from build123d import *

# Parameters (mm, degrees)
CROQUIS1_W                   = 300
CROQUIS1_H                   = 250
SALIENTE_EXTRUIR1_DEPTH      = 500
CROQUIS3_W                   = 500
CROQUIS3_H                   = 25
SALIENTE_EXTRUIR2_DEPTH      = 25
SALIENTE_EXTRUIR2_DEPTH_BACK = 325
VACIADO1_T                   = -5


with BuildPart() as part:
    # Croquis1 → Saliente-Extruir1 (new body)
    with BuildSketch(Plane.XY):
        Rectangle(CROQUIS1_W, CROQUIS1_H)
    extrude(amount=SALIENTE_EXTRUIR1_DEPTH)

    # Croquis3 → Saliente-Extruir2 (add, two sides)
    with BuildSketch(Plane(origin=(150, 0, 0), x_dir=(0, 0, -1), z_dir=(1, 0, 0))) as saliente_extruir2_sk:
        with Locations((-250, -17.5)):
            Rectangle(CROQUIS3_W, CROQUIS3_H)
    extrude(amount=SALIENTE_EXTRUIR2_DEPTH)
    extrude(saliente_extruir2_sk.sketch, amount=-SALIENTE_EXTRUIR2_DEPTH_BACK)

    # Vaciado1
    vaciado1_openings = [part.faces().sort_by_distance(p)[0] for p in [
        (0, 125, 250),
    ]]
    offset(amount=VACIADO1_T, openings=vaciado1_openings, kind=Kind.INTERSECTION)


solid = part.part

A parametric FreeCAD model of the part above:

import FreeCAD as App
import Part
import Sketcher
from FreeCAD import Vector
Q = App.Units.Quantity


def faces_at(feature, points):
    """Names of the faces that lie closest to the given points."""
    faces = feature.Shape.Faces
    near = lambda p: min(range(len(faces)), key=lambda i: faces[i].distToShape(Part.Vertex(*p))[0])
    return sorted({f"Face{near(p) + 1}" for p in points})


def add_polygon(sketch, points):
    """Adds a closed chain of lines whose ends are joined by coincident constraints."""
    first, n = sketch.GeometryCount, len(points)
    for a, b in zip(points, points[1:] + points[:1]):
        sketch.addGeometry(Part.LineSegment(App.Vector(*a, 0), App.Vector(*b, 0)), False)
    for i in range(n):
        sketch.addConstraint(Sketcher.Constraint("Coincident", first + i, 2, first + (i + 1) % n, 1))

doc = App.newDocument("Part")
body = doc.addObject("PartDesign::Body", "Body")

# Sketch on XY plane
sketch1 = doc.addObject("Sketcher::SketchObject", "Sketch")
body.addObject(sketch1)
sketch1.AttachmentSupport = (doc.XY_Plane, [""])
sketch1.MapMode = "FlatFace"
add_polygon(sketch1, [(-150, 125), (-150, -125), (150, -125), (150, 125)])  # lines 0-3
sketch1.addConstraint([
    Sketcher.Constraint("Vertical", 0),
    Sketcher.Constraint("Horizontal", 1),
    Sketcher.Constraint("Vertical", 2),
    Sketcher.Constraint("Horizontal", 3),
    Sketcher.Constraint("Symmetric", 0, 2, 2, 2, -1, 1),
    Sketcher.Constraint("DistanceX", 1, 1, 1, 2, Q("300 mm")),
    Sketcher.Constraint("DistanceY", 0, 2, 0, 1, Q("250 mm")),
])
pad1 = doc.addObject("PartDesign::Pad", "Pad")
body.addObject(pad1)
pad1.Profile = sketch1
pad1.Length = 500

# Sketch on YZ plane
sketch2 = doc.addObject("Sketcher::SketchObject", "Sketch001")
body.addObject(sketch2)
sketch2.AttachmentSupport = (doc.YZ_Plane, [""])
sketch2.MapMode = "FlatFace"
sketch2.AttachmentOffset = App.Placement(Vector(0, 0, 150), App.Rotation())
add_polygon(sketch2, [(-5, 500), (-30, 500), (-30, 0), (-5, 0)])  # lines 0-3
sketch2.addConstraint([
    Sketcher.Constraint("Horizontal", 0),
    Sketcher.Constraint("Vertical", 1),
    Sketcher.Constraint("Horizontal", 2),
    Sketcher.Constraint("Vertical", 3),
    Sketcher.Constraint("PointOnObject", 1, 2, -1),
    Sketcher.Constraint("DistanceX", 0, 2, 0, 1, Q("25 mm")),
    Sketcher.Constraint("DistanceY", 1, 2, 1, 1, Q("500 mm")),
    Sketcher.Constraint("DistanceX", 0, 2, -1, 1, Q("30 mm")),
])
pad2 = doc.addObject("PartDesign::Pad", "Pad001")
body.addObject(pad2)
pad2.Profile = sketch2
pad2.Type = "TwoLengths"
pad2.Length = 25
pad2.Length2 = 325
doc.recompute()

thickness = doc.addObject("PartDesign::Thickness", "Thickness")
body.addObject(thickness)
thickness.Base = (pad2, faces_at(pad2, [(0, 125, 250)]))
thickness.Value = 5
thickness.Reversed = True
thickness.Join = "Intersection"

doc.recompute()
